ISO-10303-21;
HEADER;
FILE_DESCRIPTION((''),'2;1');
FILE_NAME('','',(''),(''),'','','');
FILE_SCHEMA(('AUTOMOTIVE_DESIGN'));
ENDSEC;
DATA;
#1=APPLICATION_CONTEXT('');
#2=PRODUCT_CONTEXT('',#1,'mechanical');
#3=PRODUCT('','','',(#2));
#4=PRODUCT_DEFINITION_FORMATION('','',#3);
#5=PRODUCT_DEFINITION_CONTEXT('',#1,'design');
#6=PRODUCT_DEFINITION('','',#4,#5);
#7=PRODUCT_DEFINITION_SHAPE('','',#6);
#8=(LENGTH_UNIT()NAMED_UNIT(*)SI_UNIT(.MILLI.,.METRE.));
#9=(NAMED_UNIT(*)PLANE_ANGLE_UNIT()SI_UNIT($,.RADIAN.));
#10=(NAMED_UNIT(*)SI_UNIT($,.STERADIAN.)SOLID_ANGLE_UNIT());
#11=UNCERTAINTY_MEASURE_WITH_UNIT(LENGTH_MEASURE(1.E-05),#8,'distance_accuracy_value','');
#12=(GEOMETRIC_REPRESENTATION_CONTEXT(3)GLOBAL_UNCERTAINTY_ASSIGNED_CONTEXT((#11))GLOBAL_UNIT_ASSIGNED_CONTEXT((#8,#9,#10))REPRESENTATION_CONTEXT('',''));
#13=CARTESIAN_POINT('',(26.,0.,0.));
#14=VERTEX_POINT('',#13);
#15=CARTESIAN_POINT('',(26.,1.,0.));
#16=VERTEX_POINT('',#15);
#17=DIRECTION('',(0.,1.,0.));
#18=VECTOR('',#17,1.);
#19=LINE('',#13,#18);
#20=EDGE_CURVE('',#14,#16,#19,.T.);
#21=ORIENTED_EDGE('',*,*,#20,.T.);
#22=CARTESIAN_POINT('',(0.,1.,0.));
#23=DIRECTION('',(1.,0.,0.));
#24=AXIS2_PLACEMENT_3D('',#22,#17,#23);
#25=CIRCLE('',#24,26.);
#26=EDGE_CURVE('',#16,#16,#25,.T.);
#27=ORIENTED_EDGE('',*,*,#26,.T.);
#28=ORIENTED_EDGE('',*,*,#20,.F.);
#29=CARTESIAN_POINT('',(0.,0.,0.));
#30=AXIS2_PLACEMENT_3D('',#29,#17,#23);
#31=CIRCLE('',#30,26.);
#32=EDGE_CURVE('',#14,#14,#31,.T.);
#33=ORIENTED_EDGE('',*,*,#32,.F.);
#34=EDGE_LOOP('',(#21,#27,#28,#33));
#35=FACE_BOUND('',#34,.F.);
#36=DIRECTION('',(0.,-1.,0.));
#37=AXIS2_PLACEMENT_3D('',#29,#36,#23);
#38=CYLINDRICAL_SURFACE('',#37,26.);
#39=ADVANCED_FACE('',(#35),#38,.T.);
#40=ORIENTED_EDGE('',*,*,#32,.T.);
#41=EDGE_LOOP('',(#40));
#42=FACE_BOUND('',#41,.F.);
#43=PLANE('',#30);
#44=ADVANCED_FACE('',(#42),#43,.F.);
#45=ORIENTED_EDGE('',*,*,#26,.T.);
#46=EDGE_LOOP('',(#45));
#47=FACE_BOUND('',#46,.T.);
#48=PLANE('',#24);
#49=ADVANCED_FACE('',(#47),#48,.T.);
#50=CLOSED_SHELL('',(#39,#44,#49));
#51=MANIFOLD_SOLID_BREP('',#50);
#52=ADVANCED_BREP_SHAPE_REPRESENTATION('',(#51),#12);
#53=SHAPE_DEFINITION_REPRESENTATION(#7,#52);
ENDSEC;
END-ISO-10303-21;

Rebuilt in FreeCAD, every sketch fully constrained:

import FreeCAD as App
import Part
import Sketcher

V = App.Vector

doc = App.newDocument("Part")
body = doc.addObject("PartDesign::Body", "Body")

sketch1 = body.newObject("Sketcher::SketchObject", "Sketch")
sketch1.AttachmentSupport = (doc.getObject("XZ_Plane"), [""])
sketch1.MapMode = "FlatFace"
sketch1.addGeometry(Part.Circle(V(0, 0, 0), V(0, 0, 1), 26), False)
sketch1.addConstraint([
    Sketcher.Constraint("Coincident", 0, 3, -1, 1),
    Sketcher.Constraint("Diameter", 0, 52.0),
])
pad1 = body.newObject("PartDesign::Pad", "Pad")
pad1.Profile = sketch1
pad1.Length = 1
pad1.Reversed = True

doc.recompute()
